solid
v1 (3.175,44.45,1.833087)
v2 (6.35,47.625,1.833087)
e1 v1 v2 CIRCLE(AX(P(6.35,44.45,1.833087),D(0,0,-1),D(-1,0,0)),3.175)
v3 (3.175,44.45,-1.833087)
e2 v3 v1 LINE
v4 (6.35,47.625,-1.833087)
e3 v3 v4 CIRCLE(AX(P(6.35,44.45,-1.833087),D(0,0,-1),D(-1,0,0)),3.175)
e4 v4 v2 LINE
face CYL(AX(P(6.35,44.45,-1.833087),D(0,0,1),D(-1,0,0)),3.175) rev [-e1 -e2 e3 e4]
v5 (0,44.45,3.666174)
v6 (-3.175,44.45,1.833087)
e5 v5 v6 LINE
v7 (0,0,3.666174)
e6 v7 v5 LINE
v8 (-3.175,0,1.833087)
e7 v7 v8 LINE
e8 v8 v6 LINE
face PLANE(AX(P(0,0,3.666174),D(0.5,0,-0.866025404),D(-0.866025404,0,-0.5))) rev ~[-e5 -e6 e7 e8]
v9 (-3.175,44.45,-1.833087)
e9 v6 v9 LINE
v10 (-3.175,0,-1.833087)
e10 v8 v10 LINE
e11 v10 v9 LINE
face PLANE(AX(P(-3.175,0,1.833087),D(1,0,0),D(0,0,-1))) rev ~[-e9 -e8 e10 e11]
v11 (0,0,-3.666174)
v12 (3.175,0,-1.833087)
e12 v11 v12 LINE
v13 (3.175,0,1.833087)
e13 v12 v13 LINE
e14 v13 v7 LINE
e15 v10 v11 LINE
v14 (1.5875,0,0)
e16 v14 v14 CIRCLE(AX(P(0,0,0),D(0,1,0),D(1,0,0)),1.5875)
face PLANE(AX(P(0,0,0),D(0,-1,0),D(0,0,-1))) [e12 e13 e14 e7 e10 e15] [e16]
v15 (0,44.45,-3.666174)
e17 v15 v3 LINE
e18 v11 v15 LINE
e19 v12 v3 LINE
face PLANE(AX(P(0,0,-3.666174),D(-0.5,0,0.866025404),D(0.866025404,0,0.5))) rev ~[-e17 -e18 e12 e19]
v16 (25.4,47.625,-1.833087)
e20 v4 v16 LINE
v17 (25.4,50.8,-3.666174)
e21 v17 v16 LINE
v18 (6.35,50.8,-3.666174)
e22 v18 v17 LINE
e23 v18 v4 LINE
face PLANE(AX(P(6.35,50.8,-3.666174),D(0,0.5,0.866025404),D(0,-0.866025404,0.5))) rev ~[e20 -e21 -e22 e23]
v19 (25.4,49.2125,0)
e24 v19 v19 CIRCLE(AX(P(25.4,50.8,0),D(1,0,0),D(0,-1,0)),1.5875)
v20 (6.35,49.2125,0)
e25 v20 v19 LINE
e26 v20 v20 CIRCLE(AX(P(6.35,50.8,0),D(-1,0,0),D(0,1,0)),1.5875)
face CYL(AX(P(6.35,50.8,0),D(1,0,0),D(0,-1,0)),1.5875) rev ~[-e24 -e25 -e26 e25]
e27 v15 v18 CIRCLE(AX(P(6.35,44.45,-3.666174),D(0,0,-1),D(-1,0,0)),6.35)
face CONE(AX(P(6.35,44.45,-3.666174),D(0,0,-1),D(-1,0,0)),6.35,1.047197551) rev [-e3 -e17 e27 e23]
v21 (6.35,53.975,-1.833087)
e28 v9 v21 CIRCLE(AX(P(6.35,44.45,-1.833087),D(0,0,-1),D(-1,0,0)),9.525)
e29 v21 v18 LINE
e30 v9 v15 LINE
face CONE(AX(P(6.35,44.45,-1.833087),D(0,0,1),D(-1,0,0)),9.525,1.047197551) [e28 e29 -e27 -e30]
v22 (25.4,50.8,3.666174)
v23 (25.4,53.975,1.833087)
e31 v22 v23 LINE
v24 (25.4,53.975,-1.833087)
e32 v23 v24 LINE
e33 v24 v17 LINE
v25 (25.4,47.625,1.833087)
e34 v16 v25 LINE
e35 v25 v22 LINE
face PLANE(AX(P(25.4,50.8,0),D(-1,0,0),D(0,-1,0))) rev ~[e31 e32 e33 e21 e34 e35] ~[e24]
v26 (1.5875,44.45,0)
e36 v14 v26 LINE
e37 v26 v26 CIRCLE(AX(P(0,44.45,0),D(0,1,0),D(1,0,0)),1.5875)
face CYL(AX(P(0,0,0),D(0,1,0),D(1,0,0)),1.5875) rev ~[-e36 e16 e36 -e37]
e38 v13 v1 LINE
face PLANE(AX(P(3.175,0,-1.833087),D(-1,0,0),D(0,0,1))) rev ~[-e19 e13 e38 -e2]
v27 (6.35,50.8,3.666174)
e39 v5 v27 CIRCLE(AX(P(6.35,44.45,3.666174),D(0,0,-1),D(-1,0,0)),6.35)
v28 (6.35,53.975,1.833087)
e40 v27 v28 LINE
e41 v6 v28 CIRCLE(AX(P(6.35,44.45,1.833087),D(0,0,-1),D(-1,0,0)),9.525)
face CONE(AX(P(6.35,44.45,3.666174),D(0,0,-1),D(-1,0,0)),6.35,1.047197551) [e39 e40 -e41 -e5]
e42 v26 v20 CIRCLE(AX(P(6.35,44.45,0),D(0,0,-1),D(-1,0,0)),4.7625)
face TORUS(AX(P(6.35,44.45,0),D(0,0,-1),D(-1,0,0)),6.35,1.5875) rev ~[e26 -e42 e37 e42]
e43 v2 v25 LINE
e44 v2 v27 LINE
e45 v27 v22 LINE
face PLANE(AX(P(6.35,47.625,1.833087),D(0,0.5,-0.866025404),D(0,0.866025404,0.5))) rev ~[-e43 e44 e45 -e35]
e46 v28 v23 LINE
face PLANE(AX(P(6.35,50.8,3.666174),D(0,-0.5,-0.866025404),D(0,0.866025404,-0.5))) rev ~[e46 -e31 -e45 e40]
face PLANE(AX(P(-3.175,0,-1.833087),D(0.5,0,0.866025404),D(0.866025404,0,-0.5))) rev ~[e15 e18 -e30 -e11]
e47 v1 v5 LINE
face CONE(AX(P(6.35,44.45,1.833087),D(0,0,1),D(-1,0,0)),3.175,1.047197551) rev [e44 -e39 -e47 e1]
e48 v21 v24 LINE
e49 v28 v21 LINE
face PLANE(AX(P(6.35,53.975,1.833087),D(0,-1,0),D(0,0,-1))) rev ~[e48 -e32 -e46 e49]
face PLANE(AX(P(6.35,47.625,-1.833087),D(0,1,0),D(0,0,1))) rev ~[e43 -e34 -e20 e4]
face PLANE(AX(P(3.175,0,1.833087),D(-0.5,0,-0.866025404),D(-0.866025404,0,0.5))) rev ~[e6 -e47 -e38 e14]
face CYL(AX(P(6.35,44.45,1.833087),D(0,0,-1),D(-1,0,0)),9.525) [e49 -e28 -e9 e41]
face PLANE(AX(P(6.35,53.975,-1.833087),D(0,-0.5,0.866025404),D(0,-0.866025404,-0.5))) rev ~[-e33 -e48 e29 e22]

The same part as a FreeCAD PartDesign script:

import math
import FreeCAD as App
import Part
import Sketcher
from FreeCAD import Vector
Q = App.Units.Quantity


def add_polygon(sketch, points):
    """Adds a closed chain of lines whose ends are joined by coincident constraints."""
    first, n = sketch.GeometryCount, len(points)
    for a, b in zip(points, points[1:] + points[:1]):
        sketch.addGeometry(Part.LineSegment(App.Vector(*a, 0), App.Vector(*b, 0)), False)
    for i in range(n):
        sketch.addConstraint(Sketcher.Constraint("Coincident", first + i, 2, first + (i + 1) % n, 1))

doc = App.newDocument("Part")
params = doc.addObject("Spreadsheet::Sheet", "Params")
for row, (alias, value) in enumerate([
    ("sketch2_radius", "0.25 in"),
    ("sketch3_diameter", "0.125 in"),
    ("sketch4_radius", "0.125 in"),
    ("sketch4_width", "0.75 in"),
    ("sketch4_height", "1.75 in"),
], start=1):
    params.set(f"A{row}", alias)
    params.set(f"B{row}", "=" + value)
    params.setAlias(f"B{row}", alias)

body = doc.addObject("PartDesign::Body", "Body")

sketch1 = body.newObject("Sketcher::SketchObject", "Sketch")
sketch1.AttachmentSupport = (doc.getObject("XZ_Plane"), [""])
sketch1.MapMode = "FlatFace"
add_polygon(sketch1, [(3.2, -1.8), (3.2, 1.8), (0, 3.7), (-3.2, 1.8), (-3.2, -1.8), (0, -3.7)])
sketch1.addConstraint([
    Sketcher.Constraint("Vertical", 0),
    Sketcher.Constraint("Vertical", 3),
    Sketcher.Constraint("Symmetric", 0, 2, 3, 2, -1, 1),
    Sketcher.Constraint("Symmetric", 1, 2, 4, 2, -1, 1),
    Sketcher.Constraint("PointOnObject", 1, 2, -2),
    Sketcher.Constraint("Parallel", 2, 5),
    Sketcher.Constraint("Horizontal", 0, 2, 2, 2),
    Sketcher.Constraint("Angle", 1, Q("150 deg")),
    Sketcher.Constraint("DistanceX", 2, 2, 0, 2, Q("0.25 in")),
    Sketcher.Constraint("DistanceY", 0, 1, 0, 2, Q("3.666174 mm")),
])

sketch2 = body.newObject("Sketcher::SketchObject", "Sketch001")
sketch2.AttachmentSupport = (doc.getObject("XY_Plane"), [""])
sketch2.MapMode = "FlatFace"
sketch2.addGeometry([
    Part.LineSegment(Vector(0, 0, 0), Vector(0, 44, 0)),
    Part.ArcOfCircle(Part.Circle(Vector(6, 44, 0), Vector(0, 0, 1), 6), math.radians(90), math.radians(180)),
    Part.LineSegment(Vector(6, 51, 0), Vector(25, 51, 0)),
], False)
sketch2.addConstraint([
    Sketcher.Constraint("Tangent", 0, 2, 1, 2),
    Sketcher.Constraint("Tangent", 1, 1, 2, 1),
    Sketcher.Constraint("Vertical", 0),
    Sketcher.Constraint("Horizontal", 2),
    Sketcher.Constraint("Coincident", 0, 1, -1, 1),
    Sketcher.Constraint("Radius", 1, Q("0.25 in")),
    Sketcher.Constraint("DistanceY", -1, 1, 1, 1, Q("2 in")),
    Sketcher.Constraint("DistanceX", -1, 1, 2, 2, Q("1 in")),
])
sketch2.setExpression("Constraints[5]", "Params.sketch2_radius")
doc.recompute()

additivepipe = body.newObject("PartDesign::AdditivePipe", "AdditivePipe")
additivepipe.Profile = sketch1
additivepipe.Spine = (sketch2, ["Edge1", "Edge2", "Edge3"])

sketch3 = body.newObject("Sketcher::SketchObject", "Sketch002")
sketch3.AttachmentSupport = (doc.getObject("XZ_Plane"), [""])
sketch3.MapMode = "FlatFace"
sketch3.addGeometry(Part.Circle(Vector(0, 0, 0), Vector(0, 0, 1), 1.6), False)
sketch3.addConstraint([
    Sketcher.Constraint("Coincident", 0, 3, -1, 1),
    Sketcher.Constraint("Diameter", 0, Q("0.125 in")),
])
sketch3.setExpression("Constraints[1]", "Params.sketch3_diameter")

sketch4 = body.newObject("Sketcher::SketchObject", "Sketch003")
sketch4.AttachmentSupport = (doc.getObject("XY_Plane"), [""])
sketch4.MapMode = "FlatFace"
sketch4.AttachmentOffset = App.Placement(Vector(0, 0, -1.833087), App.Rotation())
sketch4.addGeometry([
    Part.LineSegment(Vector(3.2, 0, 0), Vector(3.2, 44.5, 0)),
    Part.ArcOfCircle(Part.Circle(Vector(6.3, 44.5, 0), Vector(0, 0, 1), 3.2), math.radians(90), math.radians(180)),
    Part.LineSegment(Vector(6.3, 47.6, 0), Vector(25.4, 47.6, 0)),
], False)
sketch4.addConstraint([
    Sketcher.Constraint("Tangent", 0, 2, 1, 2),
    Sketcher.Constraint("Tangent", 1, 1, 2, 1),
    Sketcher.Constraint("Vertical", 0),
    Sketcher.Constraint("Horizontal", 2),
    Sketcher.Constraint("PointOnObject", 0, 1, -1),
    Sketcher.Constraint("DistanceX", -1, 1, 2, 2, Q("1 in")),
    Sketcher.Constraint("Radius", 1, Q("0.125 in")),
    Sketcher.Constraint("DistanceX", 2, 1, 2, 2, Q("0.75 in")),
    Sketcher.Constraint("DistanceY", 0, 1, 0, 2, Q("1.75 in")),
])
sketch4.setExpression("Constraints[6]", "Params.sketch4_radius")
sketch4.setExpression("Constraints[7]", "Params.sketch4_width")
sketch4.setExpression("Constraints[8]", "Params.sketch4_height")
doc.recompute()

subtractivepipe = body.newObject("PartDesign::SubtractivePipe", "SubtractivePipe")
subtractivepipe.Profile = sketch3
subtractivepipe.Spine = (sketch4, ["Edge1", "Edge2", "Edge3"])

doc.recompute()
